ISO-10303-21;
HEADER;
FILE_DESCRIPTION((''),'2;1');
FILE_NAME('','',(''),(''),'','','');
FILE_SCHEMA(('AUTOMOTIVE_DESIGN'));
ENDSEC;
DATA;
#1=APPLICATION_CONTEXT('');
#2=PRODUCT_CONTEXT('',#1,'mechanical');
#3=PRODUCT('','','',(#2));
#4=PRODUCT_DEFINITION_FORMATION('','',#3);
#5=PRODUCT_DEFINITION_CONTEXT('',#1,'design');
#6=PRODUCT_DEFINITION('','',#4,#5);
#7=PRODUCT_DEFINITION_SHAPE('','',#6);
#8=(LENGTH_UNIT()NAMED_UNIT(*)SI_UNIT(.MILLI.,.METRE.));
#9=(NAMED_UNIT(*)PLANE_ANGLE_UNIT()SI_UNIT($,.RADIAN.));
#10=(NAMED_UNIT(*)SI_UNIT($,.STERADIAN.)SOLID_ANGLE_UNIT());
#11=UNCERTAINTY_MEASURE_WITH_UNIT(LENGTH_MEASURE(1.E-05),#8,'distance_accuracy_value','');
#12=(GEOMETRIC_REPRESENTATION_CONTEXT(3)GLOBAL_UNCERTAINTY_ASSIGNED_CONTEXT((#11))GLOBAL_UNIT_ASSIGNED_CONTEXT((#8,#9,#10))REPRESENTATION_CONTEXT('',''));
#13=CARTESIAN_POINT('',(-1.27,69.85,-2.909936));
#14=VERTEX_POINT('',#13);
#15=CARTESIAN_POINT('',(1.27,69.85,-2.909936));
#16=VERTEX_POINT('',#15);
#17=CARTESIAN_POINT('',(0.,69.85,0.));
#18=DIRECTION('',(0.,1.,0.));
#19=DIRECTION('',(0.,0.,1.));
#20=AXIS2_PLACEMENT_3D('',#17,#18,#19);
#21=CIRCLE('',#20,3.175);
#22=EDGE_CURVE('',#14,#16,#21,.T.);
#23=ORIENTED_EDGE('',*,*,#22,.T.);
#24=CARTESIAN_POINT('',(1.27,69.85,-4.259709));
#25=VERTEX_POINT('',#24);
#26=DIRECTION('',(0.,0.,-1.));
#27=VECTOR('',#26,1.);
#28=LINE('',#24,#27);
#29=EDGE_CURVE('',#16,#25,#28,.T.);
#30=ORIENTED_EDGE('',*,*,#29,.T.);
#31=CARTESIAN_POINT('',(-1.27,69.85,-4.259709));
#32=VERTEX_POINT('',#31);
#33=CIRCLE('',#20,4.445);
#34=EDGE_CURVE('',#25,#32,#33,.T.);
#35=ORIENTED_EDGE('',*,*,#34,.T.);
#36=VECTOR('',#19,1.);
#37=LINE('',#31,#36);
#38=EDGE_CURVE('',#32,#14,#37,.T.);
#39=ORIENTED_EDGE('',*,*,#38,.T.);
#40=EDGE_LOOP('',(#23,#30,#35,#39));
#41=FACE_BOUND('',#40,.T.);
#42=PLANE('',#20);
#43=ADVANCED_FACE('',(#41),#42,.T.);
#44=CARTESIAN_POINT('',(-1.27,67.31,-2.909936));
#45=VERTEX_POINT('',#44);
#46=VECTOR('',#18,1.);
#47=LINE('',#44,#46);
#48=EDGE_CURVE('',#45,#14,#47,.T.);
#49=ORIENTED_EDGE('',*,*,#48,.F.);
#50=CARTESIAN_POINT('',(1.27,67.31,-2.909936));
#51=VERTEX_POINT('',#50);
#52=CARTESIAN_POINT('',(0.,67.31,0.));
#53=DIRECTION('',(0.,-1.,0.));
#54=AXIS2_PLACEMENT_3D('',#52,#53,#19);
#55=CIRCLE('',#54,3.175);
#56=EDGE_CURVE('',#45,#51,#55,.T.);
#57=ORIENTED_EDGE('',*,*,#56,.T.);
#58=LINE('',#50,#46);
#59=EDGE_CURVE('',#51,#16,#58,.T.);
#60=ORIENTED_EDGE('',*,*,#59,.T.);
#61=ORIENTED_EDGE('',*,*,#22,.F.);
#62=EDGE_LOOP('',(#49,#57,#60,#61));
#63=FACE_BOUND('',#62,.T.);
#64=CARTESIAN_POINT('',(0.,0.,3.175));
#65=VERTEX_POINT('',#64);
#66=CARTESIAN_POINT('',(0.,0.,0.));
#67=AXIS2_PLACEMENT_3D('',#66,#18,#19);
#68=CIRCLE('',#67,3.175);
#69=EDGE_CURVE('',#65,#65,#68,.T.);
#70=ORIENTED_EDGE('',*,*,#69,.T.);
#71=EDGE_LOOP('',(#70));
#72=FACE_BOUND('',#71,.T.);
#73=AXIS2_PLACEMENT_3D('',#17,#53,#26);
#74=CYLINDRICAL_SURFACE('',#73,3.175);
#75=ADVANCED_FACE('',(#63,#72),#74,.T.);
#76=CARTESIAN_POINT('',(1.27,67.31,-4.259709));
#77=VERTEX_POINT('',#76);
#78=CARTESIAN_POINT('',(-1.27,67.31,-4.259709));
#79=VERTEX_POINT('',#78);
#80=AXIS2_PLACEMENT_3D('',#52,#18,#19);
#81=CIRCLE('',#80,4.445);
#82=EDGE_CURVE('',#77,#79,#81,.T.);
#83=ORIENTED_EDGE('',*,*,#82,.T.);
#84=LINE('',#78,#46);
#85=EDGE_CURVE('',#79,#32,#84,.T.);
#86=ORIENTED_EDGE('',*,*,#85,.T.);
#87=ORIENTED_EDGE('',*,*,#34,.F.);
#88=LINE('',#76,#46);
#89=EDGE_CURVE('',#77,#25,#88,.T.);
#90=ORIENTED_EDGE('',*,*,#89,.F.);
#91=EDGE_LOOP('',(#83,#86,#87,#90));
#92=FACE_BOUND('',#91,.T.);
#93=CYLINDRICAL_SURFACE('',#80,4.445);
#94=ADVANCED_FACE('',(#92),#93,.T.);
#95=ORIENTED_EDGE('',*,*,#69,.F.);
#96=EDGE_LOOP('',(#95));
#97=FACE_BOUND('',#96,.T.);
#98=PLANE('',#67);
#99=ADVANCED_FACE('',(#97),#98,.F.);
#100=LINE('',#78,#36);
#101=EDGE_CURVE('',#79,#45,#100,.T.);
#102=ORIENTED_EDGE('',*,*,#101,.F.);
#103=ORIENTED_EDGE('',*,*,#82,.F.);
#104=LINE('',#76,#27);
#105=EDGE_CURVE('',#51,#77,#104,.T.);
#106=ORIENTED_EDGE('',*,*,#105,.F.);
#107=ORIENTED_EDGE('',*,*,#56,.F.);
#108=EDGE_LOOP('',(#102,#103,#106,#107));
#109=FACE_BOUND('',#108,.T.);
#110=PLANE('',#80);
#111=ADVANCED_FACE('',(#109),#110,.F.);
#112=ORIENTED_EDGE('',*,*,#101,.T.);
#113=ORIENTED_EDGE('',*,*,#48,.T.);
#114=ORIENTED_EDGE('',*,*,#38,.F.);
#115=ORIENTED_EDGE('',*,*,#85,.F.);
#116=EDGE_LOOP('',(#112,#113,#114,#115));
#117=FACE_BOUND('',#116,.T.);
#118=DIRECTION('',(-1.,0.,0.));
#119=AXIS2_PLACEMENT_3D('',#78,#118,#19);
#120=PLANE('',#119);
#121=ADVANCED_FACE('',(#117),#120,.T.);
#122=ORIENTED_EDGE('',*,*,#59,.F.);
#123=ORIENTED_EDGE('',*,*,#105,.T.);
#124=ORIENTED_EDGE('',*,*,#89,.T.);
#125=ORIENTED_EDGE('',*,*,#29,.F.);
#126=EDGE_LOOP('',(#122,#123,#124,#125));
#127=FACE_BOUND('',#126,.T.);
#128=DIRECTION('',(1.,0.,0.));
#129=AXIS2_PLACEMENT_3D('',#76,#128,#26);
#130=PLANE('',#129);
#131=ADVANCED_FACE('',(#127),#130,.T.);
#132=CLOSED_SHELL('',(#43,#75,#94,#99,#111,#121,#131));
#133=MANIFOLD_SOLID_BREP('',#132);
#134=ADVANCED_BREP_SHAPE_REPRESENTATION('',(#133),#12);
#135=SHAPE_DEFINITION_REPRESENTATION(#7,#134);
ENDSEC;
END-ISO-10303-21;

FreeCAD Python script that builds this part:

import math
import FreeCAD as App
import Part
import Sketcher
Q = App.Units.Quantity

doc = App.newDocument("Part")
params = doc.addObject("Spreadsheet::Sheet", "Params")
for row, (alias, value) in enumerate([
    ("sketch1_diameter", "0.25 in"),
    ("pad1_length", "2.75 in"),
    ("sketch2_radius", "0.175 in"),
    ("sketch2_radius2", "0.125 in"),
    ("pad2_length", "0.1 in"),
], start=1):
    params.set(f"A{row}", alias)
    params.set(f"B{row}", "=" + value)
    params.setAlias(f"B{row}", alias)

body = doc.addObject("PartDesign::Body", "Body")

# Sketch on XZ plane
sketch1 = body.newObject("Sketcher::SketchObject", "Sketch")
sketch1.AttachmentSupport = (doc.getObject("XZ_Plane"), [""])
sketch1.MapMode = "FlatFace"
sketch1.addGeometry(Part.Circle(App.Vector(0, 0, 0), App.Vector(0, 0, 1), 3.2), False)
sketch1.addConstraint(Sketcher.Constraint("Coincident", 0, 3, -1, 1))
sketch1.addConstraint(Sketcher.Constraint("Diameter", 0, Q("0.25 in")))
sketch1.setExpression("Constraints[1]", "Params.sketch1_diameter")
pad1 = body.newObject("PartDesign::Pad", "Pad")
pad1.Profile = sketch1
pad1.setExpression("Length", "Params.pad1_length")
pad1.Reversed = True

# Sketch on XZ plane
sketch2 = body.newObject("Sketcher::SketchObject", "Sketch001")
sketch2.AttachmentSupport = (doc.getObject("XZ_Plane"), [""])
sketch2.MapMode = "FlatFace"
sketch2.AttachmentOffset = App.Placement(App.Vector(0, 0, -2.65 * 25.4), App.Rotation())
sketch2.addGeometry(Part.LineSegment(App.Vector(1.3, -2.9, 0), App.Vector(1.3, -4.3, 0)), False)
sketch2.addGeometry(Part.ArcOfCircle(Part.Circle(App.Vector(0, 0, 0), App.Vector(0, 0, 1), 4.4), math.radians(-107), math.radians(-73)), False)
sketch2.addGeometry(Part.LineSegment(App.Vector(-1.3, -4.3, 0), App.Vector(-1.3, -2.9, 0)), False)
sketch2.addGeometry(Part.ArcOfCircle(Part.Circle(App.Vector(0, 0, 0), App.Vector(0, 0, 1), 3.2), math.radians(-114), math.radians(-66)), False)
sketch2.addConstraint(Sketcher.Constraint("Coincident", 0, 2, 1, 2))
sketch2.addConstraint(Sketcher.Constraint("Coincident", 1, 1, 2, 1))
sketch2.addConstraint(Sketcher.Constraint("Coincident", 2, 2, 3, 1))
sketch2.addConstraint(Sketcher.Constraint("Coincident", 3, 2, 0, 1))
sketch2.addConstraint(Sketcher.Constraint("Vertical", 0))
sketch2.addConstraint(Sketcher.Constraint("Vertical", 2))
sketch2.addConstraint(Sketcher.Constraint("Coincident", 1, 3, -1, 1))
sketch2.addConstraint(Sketcher.Constraint("Coincident", 3, 3, -1, 1))
sketch2.addConstraint(Sketcher.Constraint("Horizontal", 0, 2, 1, 1))
sketch2.addConstraint(Sketcher.Constraint("Radius", 1, Q("0.175 in")))
sketch2.addConstraint(Sketcher.Constraint("Radius", 3, Q("0.125 in")))
sketch2.addConstraint(Sketcher.Constraint("DistanceX", 1, 1, 0, 2, Q("0.1 in")))
sketch2.setExpression("Constraints[9]", "Params.sketch2_radius")
sketch2.setExpression("Constraints[10]", "Params.sketch2_radius2")
pad2 = body.newObject("PartDesign::Pad", "Pad001")
pad2.Profile = sketch2
pad2.setExpression("Length", "Params.pad2_length")
pad2.Reversed = True

doc.recompute()
